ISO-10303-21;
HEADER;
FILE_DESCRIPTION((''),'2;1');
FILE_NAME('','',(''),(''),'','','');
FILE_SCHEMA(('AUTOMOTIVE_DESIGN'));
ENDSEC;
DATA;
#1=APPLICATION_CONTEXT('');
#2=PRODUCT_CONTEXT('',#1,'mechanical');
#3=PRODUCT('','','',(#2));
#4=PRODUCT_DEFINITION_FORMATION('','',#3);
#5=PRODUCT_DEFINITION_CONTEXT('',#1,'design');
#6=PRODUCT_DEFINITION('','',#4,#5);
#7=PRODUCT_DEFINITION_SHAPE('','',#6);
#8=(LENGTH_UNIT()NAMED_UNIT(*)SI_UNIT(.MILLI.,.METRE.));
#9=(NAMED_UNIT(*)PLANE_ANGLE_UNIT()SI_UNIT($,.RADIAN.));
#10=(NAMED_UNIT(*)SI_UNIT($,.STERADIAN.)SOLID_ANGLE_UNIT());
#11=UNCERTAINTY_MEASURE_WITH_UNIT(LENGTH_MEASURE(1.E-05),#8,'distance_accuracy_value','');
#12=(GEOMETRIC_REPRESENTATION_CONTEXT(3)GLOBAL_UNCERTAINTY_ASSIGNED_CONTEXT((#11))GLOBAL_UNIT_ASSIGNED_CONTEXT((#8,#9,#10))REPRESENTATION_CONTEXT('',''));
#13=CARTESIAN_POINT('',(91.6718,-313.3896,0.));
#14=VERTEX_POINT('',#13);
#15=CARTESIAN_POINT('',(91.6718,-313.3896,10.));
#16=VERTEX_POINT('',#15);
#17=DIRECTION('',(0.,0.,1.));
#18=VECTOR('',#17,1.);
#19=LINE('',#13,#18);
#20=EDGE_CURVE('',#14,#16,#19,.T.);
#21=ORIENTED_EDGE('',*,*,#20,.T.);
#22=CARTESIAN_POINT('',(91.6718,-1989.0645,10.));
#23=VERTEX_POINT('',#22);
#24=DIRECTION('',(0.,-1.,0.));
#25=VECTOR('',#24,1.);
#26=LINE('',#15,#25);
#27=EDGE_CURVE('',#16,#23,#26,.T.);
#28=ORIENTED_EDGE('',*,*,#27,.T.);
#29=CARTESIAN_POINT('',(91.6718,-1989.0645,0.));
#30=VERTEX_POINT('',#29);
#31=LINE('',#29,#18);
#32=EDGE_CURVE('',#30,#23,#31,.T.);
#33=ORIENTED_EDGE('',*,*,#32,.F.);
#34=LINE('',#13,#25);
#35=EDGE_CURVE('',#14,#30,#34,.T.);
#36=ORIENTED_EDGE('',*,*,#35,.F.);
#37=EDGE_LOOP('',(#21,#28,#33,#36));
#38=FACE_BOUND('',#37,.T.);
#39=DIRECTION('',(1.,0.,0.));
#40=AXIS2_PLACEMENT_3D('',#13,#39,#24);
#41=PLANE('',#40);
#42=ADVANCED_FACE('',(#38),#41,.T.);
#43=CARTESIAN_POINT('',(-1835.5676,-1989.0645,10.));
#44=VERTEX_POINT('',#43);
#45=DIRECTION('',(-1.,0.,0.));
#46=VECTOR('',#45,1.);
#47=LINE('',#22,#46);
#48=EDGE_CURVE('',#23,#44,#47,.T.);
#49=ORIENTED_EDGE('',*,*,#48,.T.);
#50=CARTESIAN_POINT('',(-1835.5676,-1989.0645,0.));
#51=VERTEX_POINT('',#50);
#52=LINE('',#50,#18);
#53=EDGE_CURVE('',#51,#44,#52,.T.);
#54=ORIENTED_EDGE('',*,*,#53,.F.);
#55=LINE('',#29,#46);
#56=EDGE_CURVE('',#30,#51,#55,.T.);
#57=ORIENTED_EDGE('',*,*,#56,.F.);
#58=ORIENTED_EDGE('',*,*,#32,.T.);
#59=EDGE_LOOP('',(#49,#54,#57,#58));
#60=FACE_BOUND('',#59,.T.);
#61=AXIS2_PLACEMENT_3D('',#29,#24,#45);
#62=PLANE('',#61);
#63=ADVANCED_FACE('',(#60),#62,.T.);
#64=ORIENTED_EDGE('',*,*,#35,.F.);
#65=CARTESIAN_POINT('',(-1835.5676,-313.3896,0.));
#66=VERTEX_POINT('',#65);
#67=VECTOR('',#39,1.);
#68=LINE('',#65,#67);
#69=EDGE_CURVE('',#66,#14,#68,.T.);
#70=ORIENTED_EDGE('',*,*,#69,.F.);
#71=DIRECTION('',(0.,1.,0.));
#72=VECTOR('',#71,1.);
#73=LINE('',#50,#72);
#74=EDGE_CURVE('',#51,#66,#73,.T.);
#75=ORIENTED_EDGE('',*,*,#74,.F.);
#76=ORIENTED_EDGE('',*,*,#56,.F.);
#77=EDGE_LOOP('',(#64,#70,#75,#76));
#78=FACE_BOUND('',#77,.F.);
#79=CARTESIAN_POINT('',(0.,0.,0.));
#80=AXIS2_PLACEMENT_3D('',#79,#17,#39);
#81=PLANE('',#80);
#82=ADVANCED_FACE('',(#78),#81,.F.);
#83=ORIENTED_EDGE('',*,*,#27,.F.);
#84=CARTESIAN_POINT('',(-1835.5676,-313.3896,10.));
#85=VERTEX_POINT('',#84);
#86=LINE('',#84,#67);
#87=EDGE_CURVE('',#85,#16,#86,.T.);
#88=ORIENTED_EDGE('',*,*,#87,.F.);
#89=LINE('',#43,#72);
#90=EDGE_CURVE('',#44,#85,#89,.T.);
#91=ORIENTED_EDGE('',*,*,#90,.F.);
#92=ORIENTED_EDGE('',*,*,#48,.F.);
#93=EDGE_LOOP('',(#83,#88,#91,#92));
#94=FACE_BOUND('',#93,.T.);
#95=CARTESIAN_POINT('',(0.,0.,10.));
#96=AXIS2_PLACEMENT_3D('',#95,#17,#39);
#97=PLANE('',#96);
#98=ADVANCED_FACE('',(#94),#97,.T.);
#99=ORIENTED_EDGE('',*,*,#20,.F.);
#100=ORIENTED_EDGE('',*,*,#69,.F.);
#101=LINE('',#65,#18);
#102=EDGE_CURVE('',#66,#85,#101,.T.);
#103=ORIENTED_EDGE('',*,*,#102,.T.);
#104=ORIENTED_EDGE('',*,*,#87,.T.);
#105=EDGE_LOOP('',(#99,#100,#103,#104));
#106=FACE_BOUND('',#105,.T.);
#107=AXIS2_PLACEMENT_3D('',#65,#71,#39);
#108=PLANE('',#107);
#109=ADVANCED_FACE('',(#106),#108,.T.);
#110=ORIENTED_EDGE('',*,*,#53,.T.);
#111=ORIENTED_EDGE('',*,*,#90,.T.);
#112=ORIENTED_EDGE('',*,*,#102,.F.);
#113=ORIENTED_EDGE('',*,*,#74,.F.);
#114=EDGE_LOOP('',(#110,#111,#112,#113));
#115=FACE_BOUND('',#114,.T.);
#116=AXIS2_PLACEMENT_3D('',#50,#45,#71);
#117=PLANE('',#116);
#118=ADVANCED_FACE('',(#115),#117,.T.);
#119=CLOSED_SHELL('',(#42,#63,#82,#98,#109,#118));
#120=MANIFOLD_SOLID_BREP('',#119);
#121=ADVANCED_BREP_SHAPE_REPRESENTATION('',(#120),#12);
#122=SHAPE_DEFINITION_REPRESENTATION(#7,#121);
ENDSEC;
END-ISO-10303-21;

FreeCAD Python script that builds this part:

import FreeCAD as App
import Part
import Sketcher
from FreeCAD import Vector
Q = App.Units.Quantity

doc = App.newDocument("Part")
body = doc.addObject("PartDesign::Body", "Body")

# Sketch on XY plane
sketch1 = body.newObject("Sketcher::SketchObject", "Sketch")
sketch1.AttachmentSupport = (doc.getObject("XY_Plane"), [""])
sketch1.MapMode = "FlatFace"
sketch1.addGeometry([
    Part.LineSegment(Vector(-1836, -1989, 0), Vector(92, -1989, 0)),
    Part.LineSegment(Vector(92, -1989, 0), Vector(92, -313, 0)),
    Part.LineSegment(Vector(92, -313, 0), Vector(-1836, -313, 0)),
    Part.LineSegment(Vector(-1836, -313, 0), Vector(-1836, -1989, 0)),
], False)
sketch1.addConstraint([
    Sketcher.Constraint("Coincident", 0, 2, 1, 1),
    Sketcher.Constraint("Coincident", 1, 2, 2, 1),
    Sketcher.Constraint("Coincident", 2, 2, 3, 1),
    Sketcher.Constraint("Coincident", 3, 2, 0, 1),
    Sketcher.Constraint("Horizontal", 0),
    Sketcher.Constraint("Vertical", 1),
    Sketcher.Constraint("Horizontal", 2),
    Sketcher.Constraint("Vertical", 3),
    Sketcher.Constraint("DistanceY", 1, 1, 1, 2, Q("1675.675 mm")),
    Sketcher.Constraint("DistanceX", 0, 1, 0, 2, Q("1927.2394 mm")),
    Sketcher.Constraint("DistanceX", -1, 1, 0, 2, Q("91.6718 mm")),
    Sketcher.Constraint("DistanceY", 0, 2, -1, 1, Q("1989.0645 mm")),
])
pad1 = body.newObject("PartDesign::Pad", "Pad")
pad1.Profile = sketch1
pad1.Length = 10

doc.recompute()
